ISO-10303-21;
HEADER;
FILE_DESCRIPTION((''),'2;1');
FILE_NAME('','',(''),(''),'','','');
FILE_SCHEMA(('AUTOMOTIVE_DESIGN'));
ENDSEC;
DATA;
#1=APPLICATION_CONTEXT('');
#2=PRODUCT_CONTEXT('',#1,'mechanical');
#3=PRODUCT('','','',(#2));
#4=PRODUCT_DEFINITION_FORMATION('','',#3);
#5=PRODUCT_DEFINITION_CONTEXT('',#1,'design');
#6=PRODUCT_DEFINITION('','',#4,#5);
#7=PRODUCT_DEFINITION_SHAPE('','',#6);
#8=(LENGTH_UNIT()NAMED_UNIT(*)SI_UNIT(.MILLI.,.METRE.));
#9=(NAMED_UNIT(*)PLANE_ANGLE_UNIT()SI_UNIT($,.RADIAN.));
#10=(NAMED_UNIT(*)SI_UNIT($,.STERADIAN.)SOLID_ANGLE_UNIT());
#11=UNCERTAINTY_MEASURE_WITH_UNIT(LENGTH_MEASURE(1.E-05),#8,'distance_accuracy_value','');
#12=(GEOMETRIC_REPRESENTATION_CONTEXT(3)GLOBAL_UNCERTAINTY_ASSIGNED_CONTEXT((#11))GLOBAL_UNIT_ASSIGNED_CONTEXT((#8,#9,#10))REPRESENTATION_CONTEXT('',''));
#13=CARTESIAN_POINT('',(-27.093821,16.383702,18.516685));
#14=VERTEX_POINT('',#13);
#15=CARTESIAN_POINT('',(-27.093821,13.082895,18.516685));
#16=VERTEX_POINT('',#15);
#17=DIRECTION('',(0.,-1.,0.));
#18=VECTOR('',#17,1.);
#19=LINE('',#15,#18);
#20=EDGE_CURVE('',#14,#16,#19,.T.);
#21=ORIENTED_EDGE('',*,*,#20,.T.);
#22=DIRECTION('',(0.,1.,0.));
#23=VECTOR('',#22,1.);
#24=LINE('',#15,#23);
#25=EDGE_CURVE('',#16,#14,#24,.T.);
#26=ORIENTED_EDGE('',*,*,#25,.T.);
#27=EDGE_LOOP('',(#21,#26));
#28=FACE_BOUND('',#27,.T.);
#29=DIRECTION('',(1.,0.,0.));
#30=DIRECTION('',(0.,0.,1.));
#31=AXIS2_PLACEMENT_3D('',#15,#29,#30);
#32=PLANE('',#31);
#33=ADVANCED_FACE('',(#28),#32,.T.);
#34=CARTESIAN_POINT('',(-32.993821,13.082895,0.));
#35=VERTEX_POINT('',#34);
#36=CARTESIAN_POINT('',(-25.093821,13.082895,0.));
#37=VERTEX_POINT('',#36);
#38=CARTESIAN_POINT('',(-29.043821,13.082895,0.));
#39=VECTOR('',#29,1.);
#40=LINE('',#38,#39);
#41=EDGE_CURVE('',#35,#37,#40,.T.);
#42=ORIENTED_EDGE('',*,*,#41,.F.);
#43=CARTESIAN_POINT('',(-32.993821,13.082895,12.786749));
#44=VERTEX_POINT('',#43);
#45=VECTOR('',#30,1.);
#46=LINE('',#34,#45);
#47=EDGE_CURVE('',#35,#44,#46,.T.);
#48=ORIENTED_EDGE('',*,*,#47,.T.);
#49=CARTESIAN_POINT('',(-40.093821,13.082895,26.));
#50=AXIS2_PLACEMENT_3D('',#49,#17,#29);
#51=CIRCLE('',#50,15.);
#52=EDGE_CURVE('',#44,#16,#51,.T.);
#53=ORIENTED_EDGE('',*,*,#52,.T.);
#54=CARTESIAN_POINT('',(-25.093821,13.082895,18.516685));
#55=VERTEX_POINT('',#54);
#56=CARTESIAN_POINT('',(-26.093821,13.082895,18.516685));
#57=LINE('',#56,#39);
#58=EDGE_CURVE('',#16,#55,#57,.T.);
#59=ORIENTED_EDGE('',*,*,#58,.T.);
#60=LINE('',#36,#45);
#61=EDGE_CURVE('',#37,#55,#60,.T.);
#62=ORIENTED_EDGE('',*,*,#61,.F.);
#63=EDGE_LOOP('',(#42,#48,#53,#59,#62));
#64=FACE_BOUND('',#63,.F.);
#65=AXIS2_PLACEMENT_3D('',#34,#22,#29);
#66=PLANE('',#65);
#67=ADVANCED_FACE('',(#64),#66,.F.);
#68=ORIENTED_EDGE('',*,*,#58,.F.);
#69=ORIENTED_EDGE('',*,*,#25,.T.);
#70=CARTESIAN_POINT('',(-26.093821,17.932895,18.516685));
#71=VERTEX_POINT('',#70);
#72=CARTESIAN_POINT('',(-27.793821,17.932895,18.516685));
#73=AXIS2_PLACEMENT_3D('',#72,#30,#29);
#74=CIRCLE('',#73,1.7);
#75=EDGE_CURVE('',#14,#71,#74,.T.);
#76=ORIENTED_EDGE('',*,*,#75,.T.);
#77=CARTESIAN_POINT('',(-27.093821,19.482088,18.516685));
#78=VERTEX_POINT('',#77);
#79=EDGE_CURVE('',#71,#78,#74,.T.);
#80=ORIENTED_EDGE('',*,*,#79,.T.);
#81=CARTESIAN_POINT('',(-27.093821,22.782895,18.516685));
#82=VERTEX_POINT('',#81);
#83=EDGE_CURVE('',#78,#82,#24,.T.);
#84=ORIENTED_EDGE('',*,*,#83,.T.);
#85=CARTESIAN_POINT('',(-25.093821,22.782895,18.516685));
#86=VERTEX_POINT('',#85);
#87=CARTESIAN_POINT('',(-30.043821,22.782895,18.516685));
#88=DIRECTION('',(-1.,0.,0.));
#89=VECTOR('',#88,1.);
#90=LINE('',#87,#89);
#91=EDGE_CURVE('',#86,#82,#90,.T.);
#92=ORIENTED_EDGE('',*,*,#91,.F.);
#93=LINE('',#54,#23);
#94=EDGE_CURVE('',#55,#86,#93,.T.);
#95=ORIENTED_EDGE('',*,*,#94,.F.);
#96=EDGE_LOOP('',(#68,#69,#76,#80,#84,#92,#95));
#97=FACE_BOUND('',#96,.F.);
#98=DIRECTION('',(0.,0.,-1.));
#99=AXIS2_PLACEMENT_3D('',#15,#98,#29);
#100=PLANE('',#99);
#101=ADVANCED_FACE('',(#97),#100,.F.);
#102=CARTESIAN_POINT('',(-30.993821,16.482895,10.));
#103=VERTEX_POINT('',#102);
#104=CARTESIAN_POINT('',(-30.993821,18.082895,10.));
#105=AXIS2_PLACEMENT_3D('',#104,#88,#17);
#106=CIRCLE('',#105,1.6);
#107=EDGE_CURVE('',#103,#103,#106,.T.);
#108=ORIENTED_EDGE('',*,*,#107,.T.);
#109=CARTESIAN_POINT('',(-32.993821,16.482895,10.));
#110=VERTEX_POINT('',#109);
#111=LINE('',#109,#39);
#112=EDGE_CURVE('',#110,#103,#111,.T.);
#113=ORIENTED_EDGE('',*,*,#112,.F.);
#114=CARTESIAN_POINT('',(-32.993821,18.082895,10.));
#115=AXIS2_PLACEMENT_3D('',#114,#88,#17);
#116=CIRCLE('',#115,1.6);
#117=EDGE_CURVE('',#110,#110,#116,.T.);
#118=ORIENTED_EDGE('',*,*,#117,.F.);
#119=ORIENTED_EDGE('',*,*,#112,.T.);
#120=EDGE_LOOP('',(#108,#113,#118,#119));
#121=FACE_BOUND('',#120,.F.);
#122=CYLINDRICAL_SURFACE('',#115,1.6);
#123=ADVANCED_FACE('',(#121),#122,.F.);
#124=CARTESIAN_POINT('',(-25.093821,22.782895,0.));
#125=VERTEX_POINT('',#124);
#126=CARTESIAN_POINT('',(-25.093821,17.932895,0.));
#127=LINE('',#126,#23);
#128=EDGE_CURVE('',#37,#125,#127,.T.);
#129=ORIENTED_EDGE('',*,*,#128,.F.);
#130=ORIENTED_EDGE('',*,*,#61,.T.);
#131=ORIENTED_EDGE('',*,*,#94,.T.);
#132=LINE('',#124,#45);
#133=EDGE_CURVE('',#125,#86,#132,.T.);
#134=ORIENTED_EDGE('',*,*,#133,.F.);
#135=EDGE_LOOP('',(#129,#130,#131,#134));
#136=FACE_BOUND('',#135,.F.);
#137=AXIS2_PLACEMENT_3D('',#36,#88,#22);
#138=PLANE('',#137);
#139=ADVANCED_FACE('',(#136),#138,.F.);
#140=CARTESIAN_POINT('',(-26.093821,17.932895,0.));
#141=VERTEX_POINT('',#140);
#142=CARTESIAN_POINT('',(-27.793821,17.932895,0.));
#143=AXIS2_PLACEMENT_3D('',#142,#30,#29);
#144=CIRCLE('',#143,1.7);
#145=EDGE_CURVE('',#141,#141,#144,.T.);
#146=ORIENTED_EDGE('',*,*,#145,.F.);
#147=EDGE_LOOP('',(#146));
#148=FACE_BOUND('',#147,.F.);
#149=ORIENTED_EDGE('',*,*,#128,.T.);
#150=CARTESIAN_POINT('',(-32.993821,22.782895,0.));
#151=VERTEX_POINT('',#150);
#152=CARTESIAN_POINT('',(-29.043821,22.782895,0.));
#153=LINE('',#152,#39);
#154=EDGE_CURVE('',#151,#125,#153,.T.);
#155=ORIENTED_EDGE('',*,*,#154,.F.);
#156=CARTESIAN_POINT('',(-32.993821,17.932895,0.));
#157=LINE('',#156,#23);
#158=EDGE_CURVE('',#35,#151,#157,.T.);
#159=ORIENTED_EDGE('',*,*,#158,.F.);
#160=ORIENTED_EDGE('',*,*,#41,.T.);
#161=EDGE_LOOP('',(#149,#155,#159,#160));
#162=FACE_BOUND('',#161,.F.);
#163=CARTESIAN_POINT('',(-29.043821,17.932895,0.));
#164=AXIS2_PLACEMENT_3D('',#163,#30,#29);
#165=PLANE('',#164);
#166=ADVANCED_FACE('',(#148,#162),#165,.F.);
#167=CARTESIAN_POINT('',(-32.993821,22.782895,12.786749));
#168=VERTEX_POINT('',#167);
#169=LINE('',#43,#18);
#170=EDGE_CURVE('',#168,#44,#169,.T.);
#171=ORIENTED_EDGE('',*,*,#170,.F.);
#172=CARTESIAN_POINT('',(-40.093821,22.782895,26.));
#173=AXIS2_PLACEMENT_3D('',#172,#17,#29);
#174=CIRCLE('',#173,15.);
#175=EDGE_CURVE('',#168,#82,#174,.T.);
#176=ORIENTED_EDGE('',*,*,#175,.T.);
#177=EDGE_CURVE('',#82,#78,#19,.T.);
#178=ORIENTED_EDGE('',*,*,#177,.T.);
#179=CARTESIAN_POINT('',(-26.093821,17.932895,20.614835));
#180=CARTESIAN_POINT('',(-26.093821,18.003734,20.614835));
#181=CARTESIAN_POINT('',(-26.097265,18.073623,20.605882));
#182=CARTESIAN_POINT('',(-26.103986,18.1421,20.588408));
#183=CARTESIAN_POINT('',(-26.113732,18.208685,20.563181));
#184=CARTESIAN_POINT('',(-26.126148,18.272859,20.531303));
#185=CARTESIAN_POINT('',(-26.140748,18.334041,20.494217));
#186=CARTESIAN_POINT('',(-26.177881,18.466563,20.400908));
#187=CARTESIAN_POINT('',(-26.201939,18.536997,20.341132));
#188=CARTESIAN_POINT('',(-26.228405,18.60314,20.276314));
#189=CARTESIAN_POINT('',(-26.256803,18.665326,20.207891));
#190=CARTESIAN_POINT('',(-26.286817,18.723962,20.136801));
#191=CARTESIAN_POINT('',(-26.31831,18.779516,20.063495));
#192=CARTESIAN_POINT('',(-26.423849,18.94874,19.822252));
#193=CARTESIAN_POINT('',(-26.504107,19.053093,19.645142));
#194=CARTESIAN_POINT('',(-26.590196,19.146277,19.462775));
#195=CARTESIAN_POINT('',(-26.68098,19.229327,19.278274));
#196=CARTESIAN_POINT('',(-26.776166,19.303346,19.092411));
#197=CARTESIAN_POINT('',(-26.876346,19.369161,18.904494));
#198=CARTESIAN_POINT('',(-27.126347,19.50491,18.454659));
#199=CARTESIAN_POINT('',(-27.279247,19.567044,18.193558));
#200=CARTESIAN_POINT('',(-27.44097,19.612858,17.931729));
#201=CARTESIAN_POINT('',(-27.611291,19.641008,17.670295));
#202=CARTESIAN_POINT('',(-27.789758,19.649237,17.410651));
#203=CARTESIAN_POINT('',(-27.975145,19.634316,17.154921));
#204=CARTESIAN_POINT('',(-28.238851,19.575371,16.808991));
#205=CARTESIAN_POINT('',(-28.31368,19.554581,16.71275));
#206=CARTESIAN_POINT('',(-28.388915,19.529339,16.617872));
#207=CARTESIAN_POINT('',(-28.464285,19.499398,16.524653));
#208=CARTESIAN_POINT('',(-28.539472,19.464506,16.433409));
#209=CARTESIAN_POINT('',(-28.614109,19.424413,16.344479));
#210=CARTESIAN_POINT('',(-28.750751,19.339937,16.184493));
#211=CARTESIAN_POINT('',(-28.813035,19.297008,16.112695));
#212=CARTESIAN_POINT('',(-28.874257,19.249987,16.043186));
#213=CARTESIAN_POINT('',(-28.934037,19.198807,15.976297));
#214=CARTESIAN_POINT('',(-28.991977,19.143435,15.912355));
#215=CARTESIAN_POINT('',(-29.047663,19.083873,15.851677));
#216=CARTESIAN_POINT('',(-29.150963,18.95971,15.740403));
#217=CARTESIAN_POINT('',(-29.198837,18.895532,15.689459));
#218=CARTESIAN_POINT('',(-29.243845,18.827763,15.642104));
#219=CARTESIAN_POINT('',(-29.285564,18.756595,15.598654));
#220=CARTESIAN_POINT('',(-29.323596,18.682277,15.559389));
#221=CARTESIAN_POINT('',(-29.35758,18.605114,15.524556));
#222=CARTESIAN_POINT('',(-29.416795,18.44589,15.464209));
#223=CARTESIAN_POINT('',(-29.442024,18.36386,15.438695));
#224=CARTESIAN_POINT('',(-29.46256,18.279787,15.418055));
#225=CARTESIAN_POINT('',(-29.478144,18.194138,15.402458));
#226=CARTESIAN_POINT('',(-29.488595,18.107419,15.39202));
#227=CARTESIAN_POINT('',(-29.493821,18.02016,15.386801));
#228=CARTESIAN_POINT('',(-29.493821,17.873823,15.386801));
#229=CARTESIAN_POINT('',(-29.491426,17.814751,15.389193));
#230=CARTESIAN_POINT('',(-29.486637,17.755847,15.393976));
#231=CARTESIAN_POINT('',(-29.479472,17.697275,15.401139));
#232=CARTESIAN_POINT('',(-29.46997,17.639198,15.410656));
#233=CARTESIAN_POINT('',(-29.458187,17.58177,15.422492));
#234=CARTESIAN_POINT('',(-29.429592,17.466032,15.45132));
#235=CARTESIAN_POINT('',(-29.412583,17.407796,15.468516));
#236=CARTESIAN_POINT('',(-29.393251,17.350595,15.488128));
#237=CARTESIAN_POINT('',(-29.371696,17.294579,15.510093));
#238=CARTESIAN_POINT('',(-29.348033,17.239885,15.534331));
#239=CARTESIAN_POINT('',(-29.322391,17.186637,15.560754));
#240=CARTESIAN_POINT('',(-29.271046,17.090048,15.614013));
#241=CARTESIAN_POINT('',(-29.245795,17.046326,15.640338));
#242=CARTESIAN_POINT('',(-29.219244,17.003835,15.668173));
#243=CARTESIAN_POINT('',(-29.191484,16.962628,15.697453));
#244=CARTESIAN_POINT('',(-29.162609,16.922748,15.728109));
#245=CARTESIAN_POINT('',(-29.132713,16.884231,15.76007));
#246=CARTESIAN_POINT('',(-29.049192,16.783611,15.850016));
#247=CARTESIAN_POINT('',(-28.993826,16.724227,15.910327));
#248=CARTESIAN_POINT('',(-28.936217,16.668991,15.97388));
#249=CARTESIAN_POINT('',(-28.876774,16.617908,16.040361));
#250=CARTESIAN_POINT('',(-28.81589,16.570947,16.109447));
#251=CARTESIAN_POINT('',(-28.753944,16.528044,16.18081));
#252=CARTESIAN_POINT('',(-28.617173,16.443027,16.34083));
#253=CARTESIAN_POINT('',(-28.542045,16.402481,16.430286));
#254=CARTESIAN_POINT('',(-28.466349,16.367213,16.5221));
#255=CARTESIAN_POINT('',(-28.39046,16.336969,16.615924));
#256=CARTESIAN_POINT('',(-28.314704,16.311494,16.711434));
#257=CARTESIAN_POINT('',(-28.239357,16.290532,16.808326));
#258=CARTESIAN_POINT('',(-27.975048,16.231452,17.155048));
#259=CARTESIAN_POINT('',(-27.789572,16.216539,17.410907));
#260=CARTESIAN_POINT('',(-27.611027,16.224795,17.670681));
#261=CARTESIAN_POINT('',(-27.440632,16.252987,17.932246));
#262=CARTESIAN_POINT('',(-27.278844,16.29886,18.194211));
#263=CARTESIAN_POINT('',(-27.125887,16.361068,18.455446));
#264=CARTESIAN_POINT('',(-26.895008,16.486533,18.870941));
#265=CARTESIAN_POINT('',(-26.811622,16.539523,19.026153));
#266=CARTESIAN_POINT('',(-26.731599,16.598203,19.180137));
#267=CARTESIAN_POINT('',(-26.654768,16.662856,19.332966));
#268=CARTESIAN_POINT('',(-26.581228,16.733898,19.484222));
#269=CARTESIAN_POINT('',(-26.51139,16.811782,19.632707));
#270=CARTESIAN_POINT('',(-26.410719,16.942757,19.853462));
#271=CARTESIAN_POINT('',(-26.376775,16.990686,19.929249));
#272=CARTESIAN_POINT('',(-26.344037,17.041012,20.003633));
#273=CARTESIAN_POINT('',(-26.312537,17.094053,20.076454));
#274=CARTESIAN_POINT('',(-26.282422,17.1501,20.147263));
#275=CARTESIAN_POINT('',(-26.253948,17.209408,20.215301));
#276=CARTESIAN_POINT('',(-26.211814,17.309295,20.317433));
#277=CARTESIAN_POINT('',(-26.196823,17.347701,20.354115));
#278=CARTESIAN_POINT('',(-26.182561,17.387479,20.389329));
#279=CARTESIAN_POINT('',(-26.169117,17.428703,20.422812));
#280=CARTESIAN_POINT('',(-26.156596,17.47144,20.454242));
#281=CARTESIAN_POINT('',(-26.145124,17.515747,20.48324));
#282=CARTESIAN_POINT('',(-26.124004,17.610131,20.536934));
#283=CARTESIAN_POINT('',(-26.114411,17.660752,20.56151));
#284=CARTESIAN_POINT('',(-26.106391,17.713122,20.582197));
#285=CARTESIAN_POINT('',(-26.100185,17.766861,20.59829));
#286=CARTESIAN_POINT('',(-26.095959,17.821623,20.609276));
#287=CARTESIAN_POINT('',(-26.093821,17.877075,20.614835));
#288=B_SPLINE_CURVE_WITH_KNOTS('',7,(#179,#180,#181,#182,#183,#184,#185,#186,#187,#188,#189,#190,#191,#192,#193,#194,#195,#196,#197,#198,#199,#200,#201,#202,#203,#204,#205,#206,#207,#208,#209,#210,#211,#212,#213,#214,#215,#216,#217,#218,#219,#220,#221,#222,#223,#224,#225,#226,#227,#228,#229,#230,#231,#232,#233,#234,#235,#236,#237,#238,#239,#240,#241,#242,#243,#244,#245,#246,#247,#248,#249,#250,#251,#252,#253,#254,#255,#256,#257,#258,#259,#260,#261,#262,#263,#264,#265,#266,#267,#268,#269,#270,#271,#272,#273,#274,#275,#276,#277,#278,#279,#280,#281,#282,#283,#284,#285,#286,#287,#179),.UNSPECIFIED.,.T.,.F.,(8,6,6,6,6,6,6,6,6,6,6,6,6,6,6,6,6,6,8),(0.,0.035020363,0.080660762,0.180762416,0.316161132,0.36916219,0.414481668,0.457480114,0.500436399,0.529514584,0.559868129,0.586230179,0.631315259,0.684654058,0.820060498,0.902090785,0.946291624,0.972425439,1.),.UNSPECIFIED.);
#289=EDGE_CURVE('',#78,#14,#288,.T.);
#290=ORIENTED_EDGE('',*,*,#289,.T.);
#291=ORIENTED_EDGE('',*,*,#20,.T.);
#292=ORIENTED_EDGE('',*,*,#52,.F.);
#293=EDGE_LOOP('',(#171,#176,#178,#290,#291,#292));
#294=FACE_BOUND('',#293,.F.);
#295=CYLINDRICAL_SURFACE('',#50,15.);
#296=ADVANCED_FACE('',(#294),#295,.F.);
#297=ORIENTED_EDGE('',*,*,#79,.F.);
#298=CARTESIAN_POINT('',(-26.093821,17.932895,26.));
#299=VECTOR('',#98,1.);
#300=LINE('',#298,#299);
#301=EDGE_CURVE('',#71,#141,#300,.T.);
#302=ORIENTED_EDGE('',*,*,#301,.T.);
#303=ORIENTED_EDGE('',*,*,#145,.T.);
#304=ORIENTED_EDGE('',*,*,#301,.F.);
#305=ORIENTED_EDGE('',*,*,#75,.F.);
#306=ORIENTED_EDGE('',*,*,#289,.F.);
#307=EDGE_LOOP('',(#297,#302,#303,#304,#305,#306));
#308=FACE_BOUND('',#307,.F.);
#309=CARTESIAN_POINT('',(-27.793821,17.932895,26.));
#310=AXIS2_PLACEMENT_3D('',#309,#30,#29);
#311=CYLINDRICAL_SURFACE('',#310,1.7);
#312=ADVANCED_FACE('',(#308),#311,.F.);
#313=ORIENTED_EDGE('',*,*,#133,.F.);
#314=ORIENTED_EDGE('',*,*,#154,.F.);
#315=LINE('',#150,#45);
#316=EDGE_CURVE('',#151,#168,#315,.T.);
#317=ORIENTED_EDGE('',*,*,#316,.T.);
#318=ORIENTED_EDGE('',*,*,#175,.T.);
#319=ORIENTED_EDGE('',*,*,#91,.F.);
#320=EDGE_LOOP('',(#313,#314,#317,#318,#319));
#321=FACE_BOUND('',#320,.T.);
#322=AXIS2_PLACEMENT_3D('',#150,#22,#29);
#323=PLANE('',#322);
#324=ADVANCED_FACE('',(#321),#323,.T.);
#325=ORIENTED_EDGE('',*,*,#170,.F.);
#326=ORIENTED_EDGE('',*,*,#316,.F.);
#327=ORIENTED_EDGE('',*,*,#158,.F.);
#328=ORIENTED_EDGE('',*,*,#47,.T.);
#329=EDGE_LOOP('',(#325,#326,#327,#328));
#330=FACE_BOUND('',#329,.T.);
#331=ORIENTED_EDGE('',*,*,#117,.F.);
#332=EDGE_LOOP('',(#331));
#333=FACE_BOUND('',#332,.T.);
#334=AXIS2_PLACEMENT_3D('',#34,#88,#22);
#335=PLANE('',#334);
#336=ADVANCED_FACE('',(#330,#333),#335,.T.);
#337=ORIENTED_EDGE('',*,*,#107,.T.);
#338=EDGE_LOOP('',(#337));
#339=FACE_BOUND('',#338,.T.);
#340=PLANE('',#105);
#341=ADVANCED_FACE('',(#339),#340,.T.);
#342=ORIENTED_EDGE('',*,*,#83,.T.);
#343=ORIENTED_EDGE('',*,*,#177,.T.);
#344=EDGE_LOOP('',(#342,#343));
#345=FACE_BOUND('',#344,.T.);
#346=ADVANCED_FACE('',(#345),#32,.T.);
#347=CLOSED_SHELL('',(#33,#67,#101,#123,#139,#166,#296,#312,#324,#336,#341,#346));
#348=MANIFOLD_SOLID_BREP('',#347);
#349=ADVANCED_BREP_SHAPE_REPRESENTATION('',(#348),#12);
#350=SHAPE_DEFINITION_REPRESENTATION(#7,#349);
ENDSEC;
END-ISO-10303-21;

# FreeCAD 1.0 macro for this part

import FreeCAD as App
import Part
import Sketcher

V = App.Vector

doc = App.newDocument("Part")
params = doc.addObject("Spreadsheet::Sheet", "Params")
for row, (alias, value) in enumerate([
    ("sketch1_width", "7.9 mm"),
    ("sketch1_height", "9.7 mm"),
    ("pad1_length", "26 mm"),
    ("sketch2_diameter", "3.4 mm"),
    ("pocket1_length", "26 mm"),
    ("sketch3_diameter", "8 mm"),
    ("sketch3_diameter2", "30 mm"),
    ("pocket2_length", "10 mm"),
    ("sketch4_diameter", "3.4 mm"),
    ("pocket3_length", "2 mm"),
    ("sketch5_width", "2 mm"),
    ("pocket4_length", "10 mm"),
    ("sketch6_diameter", "3.2 mm"),
    ("pocket5_length", "2 mm"),
], start=1):
    params.set(f"A{row}", alias)
    params.set(f"B{row}", "=" + value)
    params.setAlias(f"B{row}", alias)

body = doc.addObject("PartDesign::Body", "Body")

# Sketch on XY plane
sketch1 = body.newObject("Sketcher::SketchObject", "Sketch")
sketch1.AttachmentSupport = (doc.getObject("XY_Plane"), [""])
sketch1.MapMode = "FlatFace"
sketch1.addGeometry([
    Part.LineSegment(V(-32.993821, 22.782895, 0), V(-32.993821, 13.082895, 0)),
    Part.LineSegment(V(-32.993821, 13.082895, 0), V(-25.093821, 13.082895, 0)),
    Part.LineSegment(V(-25.093821, 13.082895, 0), V(-25.093821, 22.782895, 0)),
    Part.LineSegment(V(-25.093821, 22.782895, 0), V(-32.993821, 22.782895, 0)),
], False)
sketch1.addConstraint([
    Sketcher.Constraint("Coincident", 0, 2, 1, 1),
    Sketcher.Constraint("Coincident", 1, 2, 2, 1),
    Sketcher.Constraint("Coincident", 2, 2, 3, 1),
    Sketcher.Constraint("Coincident", 3, 2, 0, 1),
    Sketcher.Constraint("Vertical", 0),
    Sketcher.Constraint("Horizontal", 1),
    Sketcher.Constraint("Vertical", 2),
    Sketcher.Constraint("Horizontal", 3),
    Sketcher.Constraint("DistanceX", 1, 1, 1, 2, 7.9),
    Sketcher.Constraint("DistanceY", 0, 2, 0, 1, 9.7),
    Sketcher.Constraint("DistanceX", 0, 2, -1, 1, 32.993821),
    Sketcher.Constraint("DistanceY", -1, 1, 0, 2, 13.082895),
])
sketch1.setExpression("Constraints[8]", "Params.sketch1_width")
sketch1.setExpression("Constraints[9]", "Params.sketch1_height")
pad1 = body.newObject("PartDesign::Pad", "Pad")
pad1.Profile = sketch1
pad1.setExpression("Length", "Params.pad1_length")

# Sketch on XY plane
sketch2 = body.newObject("Sketcher::SketchObject", "Sketch001")
sketch2.AttachmentSupport = (doc.getObject("XY_Plane"), [""])
sketch2.MapMode = "FlatFace"
sketch2.AttachmentOffset = App.Placement(V(0, 0, 26), App.Rotation())
sketch2.addGeometry(Part.Circle(V(-27.793821, 17.932895, 0), V(0, 0, 1), 1.7), False)
sketch2.addConstraint([
    Sketcher.Constraint("Diameter", 0, 3.4),
    Sketcher.Constraint("DistanceX", 0, 3, -1, 1, 27.793821),
    Sketcher.Constraint("DistanceY", -1, 1, 0, 3, 17.932895),
])
sketch2.setExpression("Constraints[0]", "Params.sketch2_diameter")
pocket1 = body.newObject("PartDesign::Pocket", "Pocket")
pocket1.Profile = sketch2
pocket1.setExpression("Length", "Params.pocket1_length")

# Sketch on XZ plane
sketch3 = body.newObject("Sketcher::SketchObject", "Sketch002")
sketch3.AttachmentSupport = (doc.getObject("XZ_Plane"), [""])
sketch3.MapMode = "FlatFace"
sketch3.AttachmentOffset = App.Placement(V(0, 0, -13.082895), App.Rotation())
sketch3.addGeometry([
    Part.Circle(V(-19.856678, 26, 0), V(0, 0, 1), 4),
    Part.Circle(V(-40.093821, 26, 0), V(0, 0, 1), 15),
], False)
sketch3.addConstraint([
    Sketcher.Constraint("Horizontal", 0, 3, 1, 3),
    Sketcher.Constraint("Diameter", 0, 8.0),
    Sketcher.Constraint("Diameter", 1, 30.0),
    Sketcher.Constraint("DistanceY", -1, 1, 0, 3, 26.0),
    Sketcher.Constraint("DistanceX", 1, 3, -1, 1, 40.093821),
    Sketcher.Constraint("DistanceX", 0, 3, -1, 1, 19.856678),
])
sketch3.setExpression("Constraints[1]", "Params.sketch3_diameter")
sketch3.setExpression("Constraints[2]", "Params.sketch3_diameter2")
pocket2 = body.newObject("PartDesign::Pocket", "Pocket001")
pocket2.Profile = sketch3
pocket2.setExpression("Length", "Params.pocket2_length")

# Sketch on XZ plane
sketch4 = body.newObject("Sketcher::SketchObject", "Sketch003")
sketch4.AttachmentSupport = (doc.getObject("XZ_Plane"), [""])
sketch4.MapMode = "FlatFace"
sketch4.AttachmentOffset = App.Placement(V(0, 0, -22.782895), App.Rotation())
sketch4.addGeometry(Part.Circle(V(19.682895, 11, 0), V(0, 0, 1), 1.7), False)
sketch4.addConstraint([
    Sketcher.Constraint("Diameter", 0, 3.4),
    Sketcher.Constraint("DistanceY", -1, 1, 0, 3, 11.0),
    Sketcher.Constraint("DistanceX", -1, 1, 0, 3, 19.682895),
])
sketch4.setExpression("Constraints[0]", "Params.sketch4_diameter")
pocket3 = body.newObject("PartDesign::Pocket", "Pocket002")
pocket3.Profile = sketch4
pocket3.setExpression("Length", "Params.pocket3_length")
pocket3.Reversed = True

# Sketch on XZ plane
sketch5 = body.newObject("Sketcher::SketchObject", "Sketch004")
sketch5.AttachmentSupport = (doc.getObject("XZ_Plane"), [""])
sketch5.MapMode = "FlatFace"
sketch5.AttachmentOffset = App.Placement(V(0, 0, -13.082895), App.Rotation())
sketch5.addGeometry([
    Part.LineSegment(V(-27.093821, 26, 0), V(-27.093821, 18.516685, 0)),
    Part.LineSegment(V(-27.093821, 18.516685, 0), V(-25.093821, 18.516685, 0)),
    Part.LineSegment(V(-25.093821, 18.516685, 0), V(-25.093821, 26, 0)),
    Part.LineSegment(V(-25.093821, 26, 0), V(-27.093821, 26, 0)),
], False)
sketch5.addConstraint([
    Sketcher.Constraint("Coincident", 0, 2, 1, 1),
    Sketcher.Constraint("Coincident", 1, 2, 2, 1),
    Sketcher.Constraint("Coincident", 2, 2, 3, 1),
    Sketcher.Constraint("Coincident", 3, 2, 0, 1),
    Sketcher.Constraint("Vertical", 0),
    Sketcher.Constraint("Horizontal", 1),
    Sketcher.Constraint("Vertical", 2),
    Sketcher.Constraint("Horizontal", 3),
    Sketcher.Constraint("DistanceX", 1, 1, 1, 2, 2.0),
    Sketcher.Constraint("DistanceY", -1, 1, 2, 2, 26.0),
    Sketcher.Constraint("DistanceY", 0, 2, 0, 1, 7.483315),
    Sketcher.Constraint("DistanceX", 0, 2, -1, 1, 27.093821),
])
sketch5.setExpression("Constraints[8]", "Params.sketch5_width")
pocket4 = body.newObject("PartDesign::Pocket", "Pocket003")
pocket4.Profile = sketch5
pocket4.setExpression("Length", "Params.pocket4_length")

# Sketch on YZ plane
sketch6 = body.newObject("Sketcher::SketchObject", "Sketch005")
sketch6.AttachmentSupport = (doc.getObject("YZ_Plane"), [""])
sketch6.MapMode = "FlatFace"
sketch6.AttachmentOffset = App.Placement(V(0, 0, -32.993821), App.Rotation())
sketch6.addGeometry(Part.Circle(V(18.082895, 10, 0), V(0, 0, 1), 1.6), False)
sketch6.addConstraint([
    Sketcher.Constraint("Diameter", 0, 3.2),
    Sketcher.Constraint("DistanceY", -1, 1, 0, 3, 10.0),
    Sketcher.Constraint("DistanceX", -1, 1, 0, 3, 18.082895),
])
sketch6.setExpression("Constraints[0]", "Params.sketch6_diameter")
pocket5 = body.newObject("PartDesign::Pocket", "Pocket004")
pocket5.Profile = sketch6
pocket5.setExpression("Length", "Params.pocket5_length")
pocket5.Reversed = True

doc.recompute()
